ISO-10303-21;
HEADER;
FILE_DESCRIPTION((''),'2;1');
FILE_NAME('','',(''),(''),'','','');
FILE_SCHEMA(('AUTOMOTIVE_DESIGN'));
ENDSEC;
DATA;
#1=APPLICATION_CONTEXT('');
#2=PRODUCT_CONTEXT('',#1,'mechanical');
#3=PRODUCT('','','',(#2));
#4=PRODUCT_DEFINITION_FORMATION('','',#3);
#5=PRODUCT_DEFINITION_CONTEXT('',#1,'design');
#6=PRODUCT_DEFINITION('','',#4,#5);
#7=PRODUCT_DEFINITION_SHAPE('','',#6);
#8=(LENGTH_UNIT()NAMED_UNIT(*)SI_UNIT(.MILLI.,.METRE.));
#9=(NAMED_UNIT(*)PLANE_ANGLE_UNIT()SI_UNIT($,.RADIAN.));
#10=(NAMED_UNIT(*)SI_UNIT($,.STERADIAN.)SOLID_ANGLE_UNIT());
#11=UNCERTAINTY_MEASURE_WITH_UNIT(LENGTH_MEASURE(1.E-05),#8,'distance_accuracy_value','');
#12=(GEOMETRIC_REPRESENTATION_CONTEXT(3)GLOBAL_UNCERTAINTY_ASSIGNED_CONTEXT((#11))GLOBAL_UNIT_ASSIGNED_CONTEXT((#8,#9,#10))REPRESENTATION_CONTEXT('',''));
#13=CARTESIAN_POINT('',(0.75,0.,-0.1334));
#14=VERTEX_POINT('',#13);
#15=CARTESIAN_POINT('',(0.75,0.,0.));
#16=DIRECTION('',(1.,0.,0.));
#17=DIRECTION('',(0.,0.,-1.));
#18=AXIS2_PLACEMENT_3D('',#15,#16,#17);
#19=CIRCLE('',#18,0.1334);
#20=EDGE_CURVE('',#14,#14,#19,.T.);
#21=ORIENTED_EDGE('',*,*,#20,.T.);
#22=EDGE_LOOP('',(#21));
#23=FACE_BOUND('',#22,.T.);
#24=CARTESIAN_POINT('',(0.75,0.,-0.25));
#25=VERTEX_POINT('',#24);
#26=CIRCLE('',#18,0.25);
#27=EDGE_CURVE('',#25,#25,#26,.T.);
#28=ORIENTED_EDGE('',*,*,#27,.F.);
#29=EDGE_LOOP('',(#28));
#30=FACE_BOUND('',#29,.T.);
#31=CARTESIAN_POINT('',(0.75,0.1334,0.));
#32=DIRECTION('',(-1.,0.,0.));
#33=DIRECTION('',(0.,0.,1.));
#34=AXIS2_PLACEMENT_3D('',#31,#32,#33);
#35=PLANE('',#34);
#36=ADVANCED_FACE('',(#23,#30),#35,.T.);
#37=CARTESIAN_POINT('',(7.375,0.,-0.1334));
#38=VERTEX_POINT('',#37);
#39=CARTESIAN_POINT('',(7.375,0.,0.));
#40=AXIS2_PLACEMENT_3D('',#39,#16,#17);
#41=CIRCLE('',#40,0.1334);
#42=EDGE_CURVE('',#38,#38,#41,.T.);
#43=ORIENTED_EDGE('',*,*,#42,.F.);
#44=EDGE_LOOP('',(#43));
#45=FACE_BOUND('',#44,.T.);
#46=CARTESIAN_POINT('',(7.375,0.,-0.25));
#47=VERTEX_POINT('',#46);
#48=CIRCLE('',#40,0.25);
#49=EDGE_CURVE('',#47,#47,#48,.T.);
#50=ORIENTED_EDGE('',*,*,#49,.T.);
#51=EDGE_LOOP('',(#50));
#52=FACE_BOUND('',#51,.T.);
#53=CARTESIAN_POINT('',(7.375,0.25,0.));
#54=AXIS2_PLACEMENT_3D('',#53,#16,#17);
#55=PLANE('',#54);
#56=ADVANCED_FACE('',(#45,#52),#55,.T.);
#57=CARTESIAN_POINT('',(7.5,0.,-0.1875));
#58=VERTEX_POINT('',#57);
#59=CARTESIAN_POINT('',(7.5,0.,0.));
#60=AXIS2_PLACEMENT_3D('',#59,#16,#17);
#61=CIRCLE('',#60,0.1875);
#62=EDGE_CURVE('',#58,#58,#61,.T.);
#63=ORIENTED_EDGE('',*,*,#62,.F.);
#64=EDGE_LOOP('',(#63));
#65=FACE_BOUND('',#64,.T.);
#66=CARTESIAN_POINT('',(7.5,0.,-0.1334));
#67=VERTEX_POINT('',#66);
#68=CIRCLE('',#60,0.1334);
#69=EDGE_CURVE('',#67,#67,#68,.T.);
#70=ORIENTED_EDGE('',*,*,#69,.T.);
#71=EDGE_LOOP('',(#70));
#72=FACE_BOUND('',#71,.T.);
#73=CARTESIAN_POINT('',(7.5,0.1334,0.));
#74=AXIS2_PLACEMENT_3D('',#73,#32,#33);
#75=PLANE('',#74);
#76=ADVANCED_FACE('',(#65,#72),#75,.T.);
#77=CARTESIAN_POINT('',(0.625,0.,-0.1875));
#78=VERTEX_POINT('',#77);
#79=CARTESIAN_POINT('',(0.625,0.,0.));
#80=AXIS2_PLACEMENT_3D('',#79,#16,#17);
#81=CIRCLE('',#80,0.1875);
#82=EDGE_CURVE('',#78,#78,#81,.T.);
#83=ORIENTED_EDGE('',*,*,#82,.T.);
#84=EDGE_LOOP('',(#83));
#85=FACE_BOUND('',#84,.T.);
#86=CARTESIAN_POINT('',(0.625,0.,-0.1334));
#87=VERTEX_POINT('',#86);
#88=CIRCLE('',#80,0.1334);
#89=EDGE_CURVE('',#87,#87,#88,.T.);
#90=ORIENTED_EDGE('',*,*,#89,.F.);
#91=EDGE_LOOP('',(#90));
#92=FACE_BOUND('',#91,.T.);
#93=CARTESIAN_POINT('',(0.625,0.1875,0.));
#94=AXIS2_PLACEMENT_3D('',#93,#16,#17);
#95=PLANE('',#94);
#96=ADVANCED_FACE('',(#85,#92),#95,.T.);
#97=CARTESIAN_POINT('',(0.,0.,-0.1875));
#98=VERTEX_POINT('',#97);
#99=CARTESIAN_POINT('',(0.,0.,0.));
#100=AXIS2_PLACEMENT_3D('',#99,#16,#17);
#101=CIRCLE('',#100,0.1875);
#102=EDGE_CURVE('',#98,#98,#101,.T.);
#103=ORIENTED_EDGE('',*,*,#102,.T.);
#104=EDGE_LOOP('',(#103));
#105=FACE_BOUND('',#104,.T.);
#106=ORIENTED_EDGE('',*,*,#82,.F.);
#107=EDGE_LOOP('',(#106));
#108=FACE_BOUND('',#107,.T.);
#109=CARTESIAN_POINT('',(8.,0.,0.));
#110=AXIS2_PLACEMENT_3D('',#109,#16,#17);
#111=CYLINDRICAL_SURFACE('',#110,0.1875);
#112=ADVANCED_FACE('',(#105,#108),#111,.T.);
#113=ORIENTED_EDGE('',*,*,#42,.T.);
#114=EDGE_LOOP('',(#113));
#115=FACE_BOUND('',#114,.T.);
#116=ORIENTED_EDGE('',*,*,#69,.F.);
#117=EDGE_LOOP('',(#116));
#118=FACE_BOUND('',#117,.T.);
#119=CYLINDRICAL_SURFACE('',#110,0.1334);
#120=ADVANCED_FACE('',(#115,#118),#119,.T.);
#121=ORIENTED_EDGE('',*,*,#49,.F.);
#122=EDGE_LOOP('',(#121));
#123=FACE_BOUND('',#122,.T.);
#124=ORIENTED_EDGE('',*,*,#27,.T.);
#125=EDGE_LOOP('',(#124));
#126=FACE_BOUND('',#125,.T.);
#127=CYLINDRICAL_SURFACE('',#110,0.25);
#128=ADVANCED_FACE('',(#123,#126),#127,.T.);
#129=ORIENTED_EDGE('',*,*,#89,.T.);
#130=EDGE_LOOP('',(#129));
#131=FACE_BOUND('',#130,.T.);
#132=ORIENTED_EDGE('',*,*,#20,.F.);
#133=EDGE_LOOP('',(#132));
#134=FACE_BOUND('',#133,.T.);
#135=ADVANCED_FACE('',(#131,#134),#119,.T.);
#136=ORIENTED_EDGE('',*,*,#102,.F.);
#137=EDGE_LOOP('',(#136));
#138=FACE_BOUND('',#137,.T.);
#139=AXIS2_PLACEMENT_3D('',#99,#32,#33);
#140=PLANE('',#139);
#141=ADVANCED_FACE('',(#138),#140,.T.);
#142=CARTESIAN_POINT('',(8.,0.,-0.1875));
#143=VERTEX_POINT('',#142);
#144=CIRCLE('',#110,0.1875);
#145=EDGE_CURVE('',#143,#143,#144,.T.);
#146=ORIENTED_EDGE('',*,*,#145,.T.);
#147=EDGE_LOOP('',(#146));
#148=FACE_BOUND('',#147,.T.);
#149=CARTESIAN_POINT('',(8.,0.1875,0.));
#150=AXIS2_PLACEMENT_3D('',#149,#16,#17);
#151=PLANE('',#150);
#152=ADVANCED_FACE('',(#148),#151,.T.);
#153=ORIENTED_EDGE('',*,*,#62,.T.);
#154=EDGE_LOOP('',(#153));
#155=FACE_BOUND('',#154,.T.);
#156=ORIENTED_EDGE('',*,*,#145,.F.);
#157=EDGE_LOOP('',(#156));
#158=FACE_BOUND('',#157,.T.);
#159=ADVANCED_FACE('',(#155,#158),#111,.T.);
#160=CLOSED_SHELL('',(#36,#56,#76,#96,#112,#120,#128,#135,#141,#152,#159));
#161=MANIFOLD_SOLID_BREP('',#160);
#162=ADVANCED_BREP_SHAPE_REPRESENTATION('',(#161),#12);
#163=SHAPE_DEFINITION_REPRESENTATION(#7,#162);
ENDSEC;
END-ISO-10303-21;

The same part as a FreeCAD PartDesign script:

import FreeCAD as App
import Part
import Sketcher
from FreeCAD import Vector


def add_polygon(sketch, points):
    """Adds a closed chain of lines whose ends are joined by coincident constraints."""
    first, n = sketch.GeometryCount, len(points)
    for a, b in zip(points, points[1:] + points[:1]):
        sketch.addGeometry(Part.LineSegment(App.Vector(*a, 0), App.Vector(*b, 0)), False)
    for i in range(n):
        sketch.addConstraint(Sketcher.Constraint("Coincident", first + i, 2, first + (i + 1) % n, 1))

doc = App.newDocument("Part")
body = doc.addObject("PartDesign::Body", "Body")

sketch1 = body.newObject("Sketcher::SketchObject", "Sketch")
sketch1.AttachmentSupport = (doc.getObject("XY_Plane"), [""])
sketch1.MapMode = "FlatFace"
add_polygon(sketch1, [(0, 0.1875), (0, 0), (8, 0), (8, 0.1875), (7.5, 0.1875), (7.5, 0.1334), (7.375, 0.1334), (7.375, 0.25), (0.75, 0.25), (0.75, 0.1334), (0.625, 0.1334), (0.625, 0.1875)])
sketch1.addConstraint(Sketcher.Constraint("Vertical", 0))
sketch1.addConstraint(Sketcher.Constraint("Horizontal", 1))
sketch1.addConstraint(Sketcher.Constraint("Vertical", 2))
sketch1.addConstraint(Sketcher.Constraint("Horizontal", 3))
sketch1.addConstraint(Sketcher.Constraint("Vertical", 4))
sketch1.addConstraint(Sketcher.Constraint("Horizontal", 5))
sketch1.addConstraint(Sketcher.Constraint("Vertical", 6))
sketch1.addConstraint(Sketcher.Constraint("Horizontal", 7))
sketch1.addConstraint(Sketcher.Constraint("Vertical", 8))
sketch1.addConstraint(Sketcher.Constraint("Horizontal", 9))
sketch1.addConstraint(Sketcher.Constraint("Vertical", 10))
sketch1.addConstraint(Sketcher.Constraint("Horizontal", 11))
sketch1.addConstraint(Sketcher.Constraint("Coincident", 0, 2, -1, 1))
sketch1.addConstraint(Sketcher.Constraint("Horizontal", 5, 2, 8, 2))
sketch1.addConstraint(Sketcher.Constraint("Horizontal", 3, 2, 10, 2))
sketch1.addConstraint(Sketcher.Constraint("Equal", 5, 9))
sketch1.addConstraint(Sketcher.Constraint("DistanceX", 1, 1, 1, 2, 8.0))
sketch1.addConstraint(Sketcher.Constraint("DistanceX", 3, 2, 3, 1, 0.5))
sketch1.addConstraint(Sketcher.Constraint("DistanceX", 5, 2, 5, 1, 0.125))
sketch1.addConstraint(Sketcher.Constraint("DistanceX", 7, 2, 7, 1, 6.625))
sketch1.addConstraint(Sketcher.Constraint("DistanceY", -1, 1, 6, 2, 0.25))
sketch1.addConstraint(Sketcher.Constraint("DistanceY", 0, 2, 0, 1, 0.1875))
sketch1.addConstraint(Sketcher.Constraint("DistanceY", 4, 2, 4, 1, 0.0541))
revolution = body.newObject("PartDesign::Revolution", "Revolution")
revolution.Profile = sketch1
revolution.ReferenceAxis = (sketch1, ["H_Axis"])
revolution.Angle = 360

doc.recompute()
